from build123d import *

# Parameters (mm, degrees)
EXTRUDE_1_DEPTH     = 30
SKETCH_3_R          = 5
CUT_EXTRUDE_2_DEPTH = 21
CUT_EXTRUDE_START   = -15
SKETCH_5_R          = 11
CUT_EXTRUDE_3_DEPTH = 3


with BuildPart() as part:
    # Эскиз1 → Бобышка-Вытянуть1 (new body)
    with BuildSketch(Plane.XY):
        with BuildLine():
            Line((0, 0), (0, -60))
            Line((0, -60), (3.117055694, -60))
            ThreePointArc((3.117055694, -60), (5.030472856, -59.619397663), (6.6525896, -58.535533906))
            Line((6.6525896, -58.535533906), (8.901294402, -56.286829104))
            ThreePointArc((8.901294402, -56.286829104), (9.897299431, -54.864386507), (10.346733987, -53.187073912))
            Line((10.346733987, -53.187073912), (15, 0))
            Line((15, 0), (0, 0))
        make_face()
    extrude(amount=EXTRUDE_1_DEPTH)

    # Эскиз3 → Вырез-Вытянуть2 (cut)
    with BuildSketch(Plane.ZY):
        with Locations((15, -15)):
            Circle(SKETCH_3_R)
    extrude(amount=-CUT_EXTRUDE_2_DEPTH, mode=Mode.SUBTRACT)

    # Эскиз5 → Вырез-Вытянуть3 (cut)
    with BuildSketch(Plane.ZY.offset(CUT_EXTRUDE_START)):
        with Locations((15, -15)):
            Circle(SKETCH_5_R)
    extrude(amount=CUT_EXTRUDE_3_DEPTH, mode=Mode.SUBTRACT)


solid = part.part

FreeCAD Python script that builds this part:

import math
import FreeCAD as App
import Part
import Sketcher
Q = App.Units.Quantity

doc = App.newDocument("Part")
body = doc.addObject("PartDesign::Body", "Body")

# Sketch on XY plane
sketch1 = body.newObject("Sketcher::SketchObject", "Sketch")
sketch1.AttachmentSupport = (doc.getObject("XY_Plane"), [""])
sketch1.MapMode = "FlatFace"
sketch1.addGeometry(Part.LineSegment(App.Vector(0, 0, 0), App.Vector(0, -60, 0)), False)
sketch1.addGeometry(Part.LineSegment(App.Vector(0, -60, 0), App.Vector(3.1, -60, 0)), False)
sketch1.addGeometry(Part.ArcOfCircle(Part.Circle(App.Vector(3.1, -55, 0), App.Vector(0, 0, 1), 5), math.radians(-90), math.radians(-45)), False)
sketch1.addGeometry(Part.LineSegment(App.Vector(6.7, -58.5, 0), App.Vector(8.9, -56.3, 0)), False)
sketch1.addGeometry(Part.ArcOfCircle(Part.Circle(App.Vector(5.4, -52.8, 0), App.Vector(0, 0, 1), 5), math.radians(-45), math.radians(-5)), False)
sketch1.addGeometry(Part.LineSegment(App.Vector(10.3, -53.2, 0), App.Vector(15, 0, 0)), False)
sketch1.addGeometry(Part.LineSegment(App.Vector(15, 0, 0), App.Vector(0, 0, 0)), False)
sketch1.addConstraint(Sketcher.Constraint("Coincident", 0, 2, 1, 1))
sketch1.addConstraint(Sketcher.Constraint("Tangent", 1, 2, 2, 1))
sketch1.addConstraint(Sketcher.Constraint("Tangent", 2, 2, 3, 1))
sketch1.addConstraint(Sketcher.Constraint("Tangent", 3, 2, 4, 1))
sketch1.addConstraint(Sketcher.Constraint("Tangent", 4, 2, 5, 1))
sketch1.addConstraint(Sketcher.Constraint("Coincident", 5, 2, 6, 1))
sketch1.addConstraint(Sketcher.Constraint("Coincident", 6, 2, 0, 1))
sketch1.addConstraint(Sketcher.Constraint("Vertical", 0))
sketch1.addConstraint(Sketcher.Constraint("Horizontal", 1))
sketch1.addConstraint(Sketcher.Constraint("Horizontal", 6))
sketch1.addConstraint(Sketcher.Constraint("Coincident", 6, 2, -1, 1))
sketch1.addConstraint(Sketcher.Constraint("Equal", 2, 4))
sketch1.addConstraint(Sketcher.Constraint("Radius", 2, Q("5 mm")))
sketch1.addConstraint(Sketcher.Constraint("DistanceX", 6, 2, 6, 1, Q("15 mm")))
sketch1.addConstraint(Sketcher.Constraint("DistanceY", 0, 2, 0, 1, Q("60 mm")))
sketch1.addConstraint(Sketcher.Constraint("Angle", 3, Q("45 deg")))
sketch1.addConstraint(Sketcher.Constraint("Angle", 5, Q("85 deg")))
sketch1.addConstraint(Sketcher.Constraint("Distance", 3, Q("3.180149 mm")))
pad1 = body.newObject("PartDesign::Pad", "Pad")
pad1.Profile = sketch1
pad1.Length = 30

# Sketch on YZ plane
sketch2 = body.newObject("Sketcher::SketchObject", "Sketch001")
sketch2.AttachmentSupport = (doc.getObject("YZ_Plane"), [""])
sketch2.MapMode = "FlatFace"
sketch2.addGeometry(Part.Circle(App.Vector(-15, 15, 0), App.Vector(0, 0, 1), 5), False)
sketch2.addConstraint(Sketcher.Constraint("Diameter", 0, Q("10 mm")))
sketch2.addConstraint(Sketcher.Constraint("DistanceX", 0, 3, -1, 1, Q("15 mm")))
sketch2.addConstraint(Sketcher.Constraint("DistanceY", -1, 1, 0, 3, Q("15 mm")))
pocket1 = body.newObject("PartDesign::Pocket", "Pocket")
pocket1.Profile = sketch2
pocket1.Length = 21
pocket1.Reversed = True

# Sketch on YZ plane
sketch3 = body.newObject("Sketcher::SketchObject", "Sketch002")
sketch3.AttachmentSupport = (doc.getObject("YZ_Plane"), [""])
sketch3.MapMode = "FlatFace"
sketch3.AttachmentOffset = App.Placement(App.Vector(0, 0, 15), App.Rotation())
sketch3.addGeometry(Part.Circle(App.Vector(-15, 15, 0), App.Vector(0, 0, 1), 11), False)
sketch3.addConstraint(Sketcher.Constraint("Diameter", 0, Q("22 mm")))
sketch3.addConstraint(Sketcher.Constraint("DistanceX", 0, 3, -1, 1, Q("15 mm")))
sketch3.addConstraint(Sketcher.Constraint("DistanceY", -1, 1, 0, 3, Q("15 mm")))
pocket2 = body.newObject("PartDesign::Pocket", "Pocket001")
pocket2.Profile = sketch3
pocket2.Length = 3

doc.recompute()
